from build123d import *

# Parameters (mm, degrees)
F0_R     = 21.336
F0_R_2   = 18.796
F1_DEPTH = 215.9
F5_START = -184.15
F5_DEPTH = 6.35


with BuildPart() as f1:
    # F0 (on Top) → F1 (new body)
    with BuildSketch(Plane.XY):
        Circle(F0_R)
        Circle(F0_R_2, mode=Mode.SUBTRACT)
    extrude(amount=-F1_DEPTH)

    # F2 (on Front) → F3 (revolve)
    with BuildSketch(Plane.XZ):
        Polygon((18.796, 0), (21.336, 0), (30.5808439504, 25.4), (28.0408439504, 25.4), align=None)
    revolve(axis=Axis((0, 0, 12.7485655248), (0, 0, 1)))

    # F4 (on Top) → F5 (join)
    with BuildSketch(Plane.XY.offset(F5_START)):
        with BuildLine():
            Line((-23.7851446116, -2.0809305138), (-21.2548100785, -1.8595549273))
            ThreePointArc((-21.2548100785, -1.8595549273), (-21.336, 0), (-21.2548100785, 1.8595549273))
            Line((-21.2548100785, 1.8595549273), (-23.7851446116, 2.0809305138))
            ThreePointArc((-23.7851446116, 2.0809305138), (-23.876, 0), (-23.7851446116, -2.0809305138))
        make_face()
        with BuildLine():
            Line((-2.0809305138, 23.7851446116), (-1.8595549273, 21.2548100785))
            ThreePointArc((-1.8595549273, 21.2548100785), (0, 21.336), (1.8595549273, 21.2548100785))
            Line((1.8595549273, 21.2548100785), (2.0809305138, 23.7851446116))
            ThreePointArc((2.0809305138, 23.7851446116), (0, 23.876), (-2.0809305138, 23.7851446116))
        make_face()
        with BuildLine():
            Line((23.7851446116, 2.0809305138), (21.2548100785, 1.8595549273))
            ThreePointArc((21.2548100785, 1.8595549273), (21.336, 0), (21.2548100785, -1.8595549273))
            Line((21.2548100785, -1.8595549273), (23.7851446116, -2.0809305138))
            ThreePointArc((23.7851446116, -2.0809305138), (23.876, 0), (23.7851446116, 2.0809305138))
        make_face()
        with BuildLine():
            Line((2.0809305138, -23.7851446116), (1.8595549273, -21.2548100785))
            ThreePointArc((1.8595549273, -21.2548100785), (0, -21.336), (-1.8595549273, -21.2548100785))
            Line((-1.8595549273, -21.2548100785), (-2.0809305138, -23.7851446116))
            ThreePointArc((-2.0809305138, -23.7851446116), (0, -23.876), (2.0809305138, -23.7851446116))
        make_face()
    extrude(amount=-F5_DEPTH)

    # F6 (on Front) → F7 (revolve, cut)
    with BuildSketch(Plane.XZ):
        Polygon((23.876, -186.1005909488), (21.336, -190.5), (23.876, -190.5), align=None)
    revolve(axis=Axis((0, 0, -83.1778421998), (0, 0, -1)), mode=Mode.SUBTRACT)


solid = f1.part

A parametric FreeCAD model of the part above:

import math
import FreeCAD as App
import Part
import Sketcher
from FreeCAD import Vector
Q = App.Units.Quantity


def add_polygon(sketch, points):
    """Adds a closed chain of lines whose ends are joined by coincident constraints."""
    first, n = sketch.GeometryCount, len(points)
    for a, b in zip(points, points[1:] + points[:1]):
        sketch.addGeometry(Part.LineSegment(App.Vector(*a, 0), App.Vector(*b, 0)), False)
    for i in range(n):
        sketch.addConstraint(Sketcher.Constraint("Coincident", first + i, 2, first + (i + 1) % n, 1))

doc = App.newDocument("Part")
params = doc.addObject("Spreadsheet::Sheet", "Params")
for row, (alias, value) in enumerate([
    ("sketch1_diameter", "1.68 in"),
    ("sketch1_diameter2", "1.48 in"),
    ("pad1_length", "8.5 in"),
    ("sketch2_width", "0.1 in"),
    ("revolution_angle", "360 deg"),
    ("sketch3_radius", "0.84 in"),
    ("sketch3_radius2", "0.94 in"),
    ("pad2_length", "0.25 in"),
    ("sketch4_width", "0.1 in"),
    ("groove_angle", "360 deg"),
], start=1):
    params.set(f"A{row}", alias)
    params.set(f"B{row}", "=" + value)
    params.setAlias(f"B{row}", alias)

body = doc.addObject("PartDesign::Body", "Body")

sketch1 = body.newObject("Sketcher::SketchObject", "Sketch")
sketch1.AttachmentSupport = (doc.getObject("XY_Plane"), [""])
sketch1.MapMode = "FlatFace"
sketch1.addGeometry([
    Part.Circle(Vector(0, 0, 0), Vector(0, 0, 1), 21),
    Part.Circle(Vector(0, 0, 0), Vector(0, 0, 1), 19),
], False)
sketch1.addConstraint([
    Sketcher.Constraint("Coincident", 0, 3, -1, 1),
    Sketcher.Constraint("Coincident", 1, 3, -1, 1),
    Sketcher.Constraint("Diameter", 0, Q("1.68 in")),
    Sketcher.Constraint("Diameter", 1, Q("1.48 in")),
])
sketch1.setExpression("Constraints[2]", "Params.sketch1_diameter")
sketch1.setExpression("Constraints[3]", "Params.sketch1_diameter2")
pad1 = body.newObject("PartDesign::Pad", "Pad")
pad1.Profile = sketch1
pad1.setExpression("Length", "Params.pad1_length")
pad1.Reversed = True

sketch2 = body.newObject("Sketcher::SketchObject", "Sketch001")
sketch2.AttachmentSupport = (doc.getObject("XZ_Plane"), [""])
sketch2.MapMode = "FlatFace"
add_polygon(sketch2, [(18.8, 0), (21.3, 0), (30.6, 25.4), (28, 25.4)])
sketch2.addConstraint([
    Sketcher.Constraint("Horizontal", 0),
    Sketcher.Constraint("Horizontal", 2),
    Sketcher.Constraint("PointOnObject", 0, 2, -1),
    Sketcher.Constraint("Parallel", 1, 3),
    Sketcher.Constraint("DistanceX", 0, 1, 0, 2, Q("0.1 in")),
    Sketcher.Constraint("DistanceY", -1, 1, 1, 2, Q("1 in")),
    Sketcher.Constraint("Angle", 1, Q("70 deg")),
    Sketcher.Constraint("DistanceX", -1, 1, 0, 2, Q("0.84 in")),
])
sketch2.setExpression("Constraints[8]", "Params.sketch2_width")
revolution = body.newObject("PartDesign::Revolution", "Revolution")
revolution.Profile = sketch2
revolution.ReferenceAxis = (sketch2, ["V_Axis"])
revolution.setExpression("Angle", "Params.revolution_angle")

sketch3 = body.newObject("Sketcher::SketchObject", "Sketch002")
sketch3.AttachmentSupport = (doc.getObject("XY_Plane"), [""])
sketch3.MapMode = "FlatFace"
sketch3.AttachmentOffset = App.Placement(Vector(0, 0, -7.25 * 25.4), App.Rotation())
sketch3.addGeometry([
    Part.LineSegment(Vector(-23.8, -2.1, 0), Vector(-21.3, -1.9, 0)),
    Part.ArcOfCircle(Part.Circle(Vector(0, 0, 0), Vector(0, 0, 1), 21.3), math.radians(175), math.radians(185)),
    Part.LineSegment(Vector(-21.3, 1.9, 0), Vector(-23.8, 2.1, 0)),
    Part.ArcOfCircle(Part.Circle(Vector(0, 0, 0), Vector(0, 0, 1), 23.9), math.radians(175), math.radians(185)),
    Part.LineSegment(Vector(-2.1, 23.8, 0), Vector(-1.9, 21.3, 0)),
    Part.ArcOfCircle(Part.Circle(Vector(0, 0, 0), Vector(0, 0, 1), 21.3), math.radians(85), math.radians(95)),
    Part.LineSegment(Vector(1.9, 21.3, 0), Vector(2.1, 23.8, 0)),
    Part.ArcOfCircle(Part.Circle(Vector(0, 0, 0), Vector(0, 0, 1), 23.9), math.radians(85), math.radians(95)),
    Part.LineSegment(Vector(23.8, 2.1, 0), Vector(21.3, 1.9, 0)),
    Part.ArcOfCircle(Part.Circle(Vector(0, 0, 0), Vector(0, 0, 1), 21.3), math.radians(-5), math.radians(5)),
    Part.LineSegment(Vector(21.3, -1.9, 0), Vector(23.8, -2.1, 0)),
    Part.ArcOfCircle(Part.Circle(Vector(0, 0, 0), Vector(0, 0, 1), 23.9), math.radians(-5), math.radians(5)),
    Part.LineSegment(Vector(2.1, -23.8, 0), Vector(1.9, -21.3, 0)),
    Part.ArcOfCircle(Part.Circle(Vector(0, 0, 0), Vector(0, 0, 1), 21.3), math.radians(-95), math.radians(-85)),
    Part.LineSegment(Vector(-1.9, -21.3, 0), Vector(-2.1, -23.8, 0)),
    Part.ArcOfCircle(Part.Circle(Vector(0, 0, 0), Vector(0, 0, 1), 23.9), math.radians(-95), math.radians(-85)),
], False)
sketch3.addConstraint([
    Sketcher.Constraint("Coincident", 0, 2, 1, 2),
    Sketcher.Constraint("Coincident", 1, 1, 2, 1),
    Sketcher.Constraint("Coincident", 2, 2, 3, 1),
    Sketcher.Constraint("Coincident", 3, 2, 0, 1),
    Sketcher.Constraint("Coincident", 4, 2, 5, 2),
    Sketcher.Constraint("Coincident", 5, 1, 6, 1),
    Sketcher.Constraint("Coincident", 6, 2, 7, 1),
    Sketcher.Constraint("Coincident", 7, 2, 4, 1),
    Sketcher.Constraint("Coincident", 8, 2, 9, 2),
    Sketcher.Constraint("Coincident", 9, 1, 10, 1),
    Sketcher.Constraint("Coincident", 10, 2, 11, 1),
    Sketcher.Constraint("Coincident", 11, 2, 8, 1),
    Sketcher.Constraint("Coincident", 12, 2, 13, 2),
    Sketcher.Constraint("Coincident", 13, 1, 14, 1),
    Sketcher.Constraint("Coincident", 14, 2, 15, 1),
    Sketcher.Constraint("Coincident", 15, 2, 12, 1),
    Sketcher.Constraint("Coincident", 1, 3, -1, 1),
    Sketcher.Constraint("Coincident", 3, 3, -1, 1),
    Sketcher.Constraint("Coincident", 5, 3, -1, 1),
    Sketcher.Constraint("Coincident", 7, 3, -1, 1),
    Sketcher.Constraint("Coincident", 9, 3, -1, 1),
    Sketcher.Constraint("Coincident", 11, 3, -1, 1),
    Sketcher.Constraint("Coincident", 13, 3, -1, 1),
    Sketcher.Constraint("Coincident", 15, 3, -1, 1),
    Sketcher.Constraint("Equal", 1, 5),
    Sketcher.Constraint("Equal", 3, 7),
    Sketcher.Constraint("Equal", 5, 9),
    Sketcher.Constraint("Equal", 7, 11),
    Sketcher.Constraint("Equal", 9, 13),
    Sketcher.Constraint("Equal", 11, 15),
    Sketcher.Constraint("Perpendicular", 0, 4),
    Sketcher.Constraint("Perpendicular", 2, 6),
    Sketcher.Constraint("Perpendicular", 4, 8),
    Sketcher.Constraint("Perpendicular", 6, 10),
    Sketcher.Constraint("Perpendicular", 8, 12),
    Sketcher.Constraint("Perpendicular", 10, 14),
    Sketcher.Constraint("Horizontal", 4, 2, 5, 1),
    Sketcher.Constraint("Horizontal", 6, 2, 7, 2),
    Sketcher.Constraint("Horizontal", 1, 1, 8, 2),
    Sketcher.Constraint("Horizontal", 0, 2, 9, 1),
    Sketcher.Constraint("Horizontal", 12, 2, 13, 1),
    Sketcher.Constraint("Vertical", 0, 2, 1, 1),
    Sketcher.Constraint("Vertical", 5, 1, 12, 2),
    Sketcher.Constraint("Radius", 1, Q("0.84 in")),
    Sketcher.Constraint("Radius", 3, Q("0.94 in")),
    Sketcher.Constraint("Angle", 0, Q("5 deg")),
    Sketcher.Constraint("DistanceX", 0, 2, -1, 1, 21.25481),
    Sketcher.Constraint("DistanceY", -1, 1, 4, 2, 21.25481),
])
sketch3.setExpression("Constraints[43]", "Params.sketch3_radius")
sketch3.setExpression("Constraints[44]", "Params.sketch3_radius2")
pad2 = body.newObject("PartDesign::Pad", "Pad001")
pad2.Profile = sketch3
pad2.setExpression("Length", "Params.pad2_length")
pad2.Reversed = True

sketch4 = body.newObject("Sketcher::SketchObject", "Sketch003")
sketch4.AttachmentSupport = (doc.getObject("XZ_Plane"), [""])
sketch4.MapMode = "FlatFace"
add_polygon(sketch4, [(23.9, -186.1), (21.3, -190.5), (23.9, -190.5)])
sketch4.addConstraint([
    Sketcher.Constraint("Horizontal", 1),
    Sketcher.Constraint("Vertical", 2),
    Sketcher.Constraint("DistanceX", 1, 1, 1, 2, Q("0.1 in")),
    Sketcher.Constraint("Angle", 0, Q("-120 deg")),
    Sketcher.Constraint("DistanceY", 0, 2, -1, 1, Q("7.5 in")),
    Sketcher.Constraint("DistanceX", -1, 1, 0, 2, Q("0.84 in")),
])
sketch4.setExpression("Constraints[5]", "Params.sketch4_width")
groove = body.newObject("PartDesign::Groove", "Groove")
groove.Profile = sketch4
groove.ReferenceAxis = (sketch4, ["V_Axis"])
groove.setExpression("Angle", "Params.groove_angle")

doc.recompute()
